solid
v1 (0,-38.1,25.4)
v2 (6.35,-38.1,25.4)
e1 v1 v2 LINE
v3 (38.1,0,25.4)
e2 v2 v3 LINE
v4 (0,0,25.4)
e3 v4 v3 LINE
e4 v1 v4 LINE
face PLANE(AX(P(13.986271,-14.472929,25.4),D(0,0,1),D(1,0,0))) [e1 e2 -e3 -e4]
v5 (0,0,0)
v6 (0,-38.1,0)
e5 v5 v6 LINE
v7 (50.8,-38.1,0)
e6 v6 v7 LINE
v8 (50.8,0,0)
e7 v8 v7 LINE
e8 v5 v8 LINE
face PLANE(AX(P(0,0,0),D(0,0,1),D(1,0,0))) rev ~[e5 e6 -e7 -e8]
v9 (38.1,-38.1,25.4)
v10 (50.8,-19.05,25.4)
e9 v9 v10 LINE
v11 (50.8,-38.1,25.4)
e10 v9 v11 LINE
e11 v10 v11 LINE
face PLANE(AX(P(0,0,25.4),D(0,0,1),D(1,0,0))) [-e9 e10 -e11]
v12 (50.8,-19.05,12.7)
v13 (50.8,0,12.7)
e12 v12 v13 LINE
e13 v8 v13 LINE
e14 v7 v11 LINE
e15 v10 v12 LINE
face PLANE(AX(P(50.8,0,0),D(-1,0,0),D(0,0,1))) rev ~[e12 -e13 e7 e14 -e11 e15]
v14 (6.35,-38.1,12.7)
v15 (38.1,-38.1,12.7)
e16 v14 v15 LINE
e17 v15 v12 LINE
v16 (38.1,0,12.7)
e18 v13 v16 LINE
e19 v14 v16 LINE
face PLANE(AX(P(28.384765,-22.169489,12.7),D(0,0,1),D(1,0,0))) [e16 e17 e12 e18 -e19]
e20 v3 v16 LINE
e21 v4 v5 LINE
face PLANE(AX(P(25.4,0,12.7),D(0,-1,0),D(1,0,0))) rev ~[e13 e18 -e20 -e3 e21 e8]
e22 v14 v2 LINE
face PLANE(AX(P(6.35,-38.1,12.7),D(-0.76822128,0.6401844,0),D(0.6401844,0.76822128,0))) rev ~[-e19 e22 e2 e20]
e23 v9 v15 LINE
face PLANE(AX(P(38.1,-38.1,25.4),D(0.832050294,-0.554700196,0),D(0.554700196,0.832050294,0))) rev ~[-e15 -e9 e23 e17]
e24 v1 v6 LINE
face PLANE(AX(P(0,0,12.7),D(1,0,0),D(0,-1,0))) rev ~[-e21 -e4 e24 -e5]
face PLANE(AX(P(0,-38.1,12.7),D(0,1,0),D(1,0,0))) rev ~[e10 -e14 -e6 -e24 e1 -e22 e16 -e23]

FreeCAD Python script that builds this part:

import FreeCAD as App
import Part
import Sketcher

V = App.Vector
Q = App.Units.Quantity


def add_polygon(sketch, points):
    """Adds a closed chain of lines whose ends are joined by coincident constraints."""
    first, n = sketch.GeometryCount, len(points)
    for a, b in zip(points, points[1:] + points[:1]):
        sketch.addGeometry(Part.LineSegment(App.Vector(*a, 0), App.Vector(*b, 0)), False)
    for i in range(n):
        sketch.addConstraint(Sketcher.Constraint("Coincident", first + i, 2, first + (i + 1) % n, 1))

doc = App.newDocument("Part")
params = doc.addObject("Spreadsheet::Sheet", "Params")
for row, (alias, value) in enumerate([
    ("sketch1_width", "2 in"),
    ("sketch1_height", "1 in"),
    ("pad1_length", "1.5 in"),
    ("sketch2_width", "1.5 in"),
    ("sketch2_width2", "0.5 in"),
    ("sketch2_height", "0.75 in"),
    ("sketch2_height2", "0.25 in"),
    ("pocket1_length", "0.5 in"),
    ("sketch3_width", "1.5 in"),
    ("sketch3_width2", "0.25 in"),
    ("pad2_length", "0.5 in"),
], start=1):
    params.set(f"A{row}", alias)
    params.set(f"B{row}", "=" + value)
    params.setAlias(f"B{row}", alias)

body = doc.addObject("PartDesign::Body", "Body")

sketch1 = body.newObject("Sketcher::SketchObject", "Sketch")
sketch1.AttachmentSupport = (doc.getObject("XZ_Plane"), [""])
sketch1.MapMode = "FlatFace"
add_polygon(sketch1, [(0, 25.4), (0, 0), (50.8, 0), (50.8, 25.4)])
sketch1.addConstraint([
    Sketcher.Constraint("Vertical", 0),
    Sketcher.Constraint("Horizontal", 1),
    Sketcher.Constraint("Vertical", 2),
    Sketcher.Constraint("Horizontal", 3),
    Sketcher.Constraint("Coincident", 0, 2, -1, 1),
    Sketcher.Constraint("DistanceX", 1, 1, 1, 2, Q("2 in")),
    Sketcher.Constraint("DistanceY", 0, 2, 0, 1, Q("1 in")),
])
sketch1.setExpression("Constraints[9]", "Params.sketch1_width")
sketch1.setExpression("Constraints[10]", "Params.sketch1_height")
pad1 = body.newObject("PartDesign::Pad", "Pad")
pad1.Profile = sketch1
pad1.setExpression("Length", "Params.pad1_length")

sketch2 = body.newObject("Sketcher::SketchObject", "Sketch001")
sketch2.AttachmentSupport = (doc.getObject("XY_Plane"), [""])
sketch2.MapMode = "FlatFace"
sketch2.AttachmentOffset = App.Placement(V(0, 0, 1 * 25.4), App.Rotation())
add_polygon(sketch2, [(0, -38.1), (38.1, -38.1), (50.8, -19.05), (50.8, 0), (38.1, 0), (0, -31.75)])
sketch2.addConstraint([
    Sketcher.Constraint("Horizontal", 0),
    Sketcher.Constraint("Vertical", 2),
    Sketcher.Constraint("Horizontal", 3),
    Sketcher.Constraint("Vertical", 5),
    Sketcher.Constraint("PointOnObject", 2, 2, -1),
    Sketcher.Constraint("PointOnObject", 4, 2, -2),
    Sketcher.Constraint("Vertical", 0, 2, 3, 2),
    Sketcher.Constraint("DistanceX", 0, 1, 0, 2, Q("1.5 in")),
    Sketcher.Constraint("DistanceX", 3, 2, 3, 1, Q("0.5 in")),
    Sketcher.Constraint("DistanceY", 2, 1, 2, 2, Q("0.75 in")),
    Sketcher.Constraint("DistanceY", 5, 2, 5, 1, Q("0.25 in")),
    Sketcher.Constraint("DistanceY", 0, 2, -1, 1, Q("1.5 in")),
])
sketch2.setExpression("Constraints[13]", "Params.sketch2_width")
sketch2.setExpression("Constraints[14]", "Params.sketch2_width2")
sketch2.setExpression("Constraints[15]", "Params.sketch2_height")
sketch2.setExpression("Constraints[16]", "Params.sketch2_height2")
pocket1 = body.newObject("PartDesign::Pocket", "Pocket")
pocket1.Profile = sketch2
pocket1.setExpression("Length", "Params.pocket1_length")

sketch3 = body.newObject("Sketcher::SketchObject", "Sketch002")
sketch3.AttachmentSupport = (doc.getObject("XY_Plane"), [""])
sketch3.MapMode = "FlatFace"
sketch3.AttachmentOffset = App.Placement(V(0, 0, 0.5 * 25.4), App.Rotation())
add_polygon(sketch3, [(0, -38.1), (6.35, -38.1), (38.1, 0), (0, 0)])
sketch3.addConstraint([
    Sketcher.Constraint("Horizontal", 0),
    Sketcher.Constraint("Horizontal", 2),
    Sketcher.Constraint("Vertical", 3),
    Sketcher.Constraint("Coincident", 2, 2, -1, 1),
    Sketcher.Constraint("Equal", 2, 3),
    Sketcher.Constraint("DistanceX", 2, 2, 2, 1, Q("1.5 in")),
    Sketcher.Constraint("DistanceX", 0, 1, 0, 2, Q("0.25 in")),
])
sketch3.setExpression("Constraints[9]", "Params.sketch3_width")
sketch3.setExpression("Constraints[10]", "Params.sketch3_width2")
pad2 = body.newObject("PartDesign::Pad", "Pad001")
pad2.Profile = sketch3
pad2.setExpression("Length", "Params.pad2_length")

doc.recompute()
